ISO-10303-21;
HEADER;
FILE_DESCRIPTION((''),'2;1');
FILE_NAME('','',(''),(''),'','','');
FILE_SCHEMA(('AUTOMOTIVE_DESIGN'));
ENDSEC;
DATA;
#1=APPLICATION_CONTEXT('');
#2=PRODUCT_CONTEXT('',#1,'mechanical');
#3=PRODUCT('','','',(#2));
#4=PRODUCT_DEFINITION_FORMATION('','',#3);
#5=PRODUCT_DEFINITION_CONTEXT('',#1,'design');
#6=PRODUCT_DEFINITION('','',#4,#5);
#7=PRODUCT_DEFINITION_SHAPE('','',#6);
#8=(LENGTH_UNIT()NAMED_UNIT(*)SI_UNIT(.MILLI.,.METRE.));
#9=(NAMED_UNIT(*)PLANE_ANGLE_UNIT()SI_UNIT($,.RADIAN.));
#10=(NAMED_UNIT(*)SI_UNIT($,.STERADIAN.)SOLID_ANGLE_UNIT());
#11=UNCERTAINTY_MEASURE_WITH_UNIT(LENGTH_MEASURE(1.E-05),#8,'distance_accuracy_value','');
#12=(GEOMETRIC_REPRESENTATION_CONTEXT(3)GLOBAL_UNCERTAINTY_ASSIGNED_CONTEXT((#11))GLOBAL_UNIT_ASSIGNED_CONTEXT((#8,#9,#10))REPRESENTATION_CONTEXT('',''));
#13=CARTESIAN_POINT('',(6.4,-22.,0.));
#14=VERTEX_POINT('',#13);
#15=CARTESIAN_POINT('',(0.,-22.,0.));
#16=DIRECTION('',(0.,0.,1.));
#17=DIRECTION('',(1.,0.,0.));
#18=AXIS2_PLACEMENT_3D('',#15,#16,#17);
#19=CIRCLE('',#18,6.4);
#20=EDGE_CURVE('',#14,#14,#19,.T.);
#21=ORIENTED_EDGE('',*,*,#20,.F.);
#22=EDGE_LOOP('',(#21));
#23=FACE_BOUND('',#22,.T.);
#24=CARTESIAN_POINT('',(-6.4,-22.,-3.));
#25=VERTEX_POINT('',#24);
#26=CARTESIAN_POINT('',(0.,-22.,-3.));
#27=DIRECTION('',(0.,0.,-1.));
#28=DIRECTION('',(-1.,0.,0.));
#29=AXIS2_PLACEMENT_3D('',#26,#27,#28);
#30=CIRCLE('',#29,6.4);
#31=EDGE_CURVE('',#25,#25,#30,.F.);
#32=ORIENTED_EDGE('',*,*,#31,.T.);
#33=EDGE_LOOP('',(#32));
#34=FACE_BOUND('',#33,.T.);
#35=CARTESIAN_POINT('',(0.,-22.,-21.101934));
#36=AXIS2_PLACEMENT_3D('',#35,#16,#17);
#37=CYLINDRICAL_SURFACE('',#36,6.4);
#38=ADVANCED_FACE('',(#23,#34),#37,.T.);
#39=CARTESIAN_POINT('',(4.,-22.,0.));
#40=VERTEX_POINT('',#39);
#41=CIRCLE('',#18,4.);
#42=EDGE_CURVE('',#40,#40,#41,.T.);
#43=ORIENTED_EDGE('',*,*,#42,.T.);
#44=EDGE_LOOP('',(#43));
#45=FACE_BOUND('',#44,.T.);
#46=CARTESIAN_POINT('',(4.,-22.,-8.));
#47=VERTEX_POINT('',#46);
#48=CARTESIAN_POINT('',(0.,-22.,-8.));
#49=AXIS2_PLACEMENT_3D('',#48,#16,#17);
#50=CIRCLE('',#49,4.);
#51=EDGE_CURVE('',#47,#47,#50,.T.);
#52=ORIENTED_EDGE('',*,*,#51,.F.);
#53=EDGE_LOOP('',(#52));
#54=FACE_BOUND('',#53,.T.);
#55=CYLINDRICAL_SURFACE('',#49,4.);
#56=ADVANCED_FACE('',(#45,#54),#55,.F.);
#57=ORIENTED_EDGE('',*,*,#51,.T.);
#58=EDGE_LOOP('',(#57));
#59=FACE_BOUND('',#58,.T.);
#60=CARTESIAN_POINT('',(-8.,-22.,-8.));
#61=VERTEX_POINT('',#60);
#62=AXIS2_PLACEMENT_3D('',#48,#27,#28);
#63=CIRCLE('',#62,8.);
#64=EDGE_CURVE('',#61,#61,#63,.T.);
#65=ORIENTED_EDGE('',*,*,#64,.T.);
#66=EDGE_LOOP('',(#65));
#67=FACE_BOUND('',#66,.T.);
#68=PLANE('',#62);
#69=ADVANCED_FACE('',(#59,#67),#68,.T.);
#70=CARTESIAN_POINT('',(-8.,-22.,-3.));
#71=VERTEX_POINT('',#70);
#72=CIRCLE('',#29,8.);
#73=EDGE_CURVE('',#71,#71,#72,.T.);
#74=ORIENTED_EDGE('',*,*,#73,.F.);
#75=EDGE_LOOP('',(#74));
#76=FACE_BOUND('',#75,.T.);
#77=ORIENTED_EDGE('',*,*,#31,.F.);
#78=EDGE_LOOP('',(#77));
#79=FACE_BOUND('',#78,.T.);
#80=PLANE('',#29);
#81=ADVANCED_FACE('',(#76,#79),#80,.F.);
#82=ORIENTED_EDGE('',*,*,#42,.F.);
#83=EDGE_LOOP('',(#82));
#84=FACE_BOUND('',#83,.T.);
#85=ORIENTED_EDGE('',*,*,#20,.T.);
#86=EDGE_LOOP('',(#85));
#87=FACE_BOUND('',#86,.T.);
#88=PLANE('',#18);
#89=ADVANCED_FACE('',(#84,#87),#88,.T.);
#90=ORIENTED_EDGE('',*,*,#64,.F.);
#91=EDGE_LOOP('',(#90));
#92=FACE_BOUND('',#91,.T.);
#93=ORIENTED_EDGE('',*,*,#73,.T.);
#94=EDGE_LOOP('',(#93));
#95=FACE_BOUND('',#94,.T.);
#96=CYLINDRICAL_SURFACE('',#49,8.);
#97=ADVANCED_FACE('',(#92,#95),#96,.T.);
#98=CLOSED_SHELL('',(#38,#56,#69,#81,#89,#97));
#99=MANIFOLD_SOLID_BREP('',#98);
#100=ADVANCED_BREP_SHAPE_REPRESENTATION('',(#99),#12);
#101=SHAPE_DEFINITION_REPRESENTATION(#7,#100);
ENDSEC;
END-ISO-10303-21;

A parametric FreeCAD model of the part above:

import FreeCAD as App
import Part
import Sketcher

V = App.Vector
Q = App.Units.Quantity

doc = App.newDocument("Part")
body = doc.addObject("PartDesign::Body", "Body")

sketch1 = body.newObject("Sketcher::SketchObject", "Sketch")
sketch1.AttachmentSupport = (doc.getObject("XY_Plane"), [""])
sketch1.MapMode = "FlatFace"
sketch1.addGeometry(Part.Circle(V(0, -22, 0), V(0, 0, 1), 6), False)
sketch1.addConstraint(Sketcher.Constraint("PointOnObject", 0, 3, -2))
sketch1.addConstraint(Sketcher.Constraint("Diameter", 0, Q("12.8 mm")))
sketch1.addConstraint(Sketcher.Constraint("DistanceY", 0, 3, -1, 1, Q("22 mm")))
pad1 = body.newObject("PartDesign::Pad", "Pad")
pad1.Profile = sketch1
pad1.Length = 3
pad1.Reversed = True

sketch2 = body.newObject("Sketcher::SketchObject", "Sketch001")
sketch2.AttachmentSupport = (doc.getObject("XY_Plane"), [""])
sketch2.MapMode = "FlatFace"
sketch2.AttachmentOffset = App.Placement(V(0, 0, -3), App.Rotation())
sketch2.addGeometry(Part.Circle(V(0, -22, 0), V(0, 0, 1), 8), False)
sketch2.addConstraint(Sketcher.Constraint("PointOnObject", 0, 3, -2))
sketch2.addConstraint(Sketcher.Constraint("Diameter", 0, Q("16 mm")))
sketch2.addConstraint(Sketcher.Constraint("DistanceY", 0, 3, -1, 1, Q("22 mm")))
pad2 = body.newObject("PartDesign::Pad", "Pad001")
pad2.Profile = sketch2
pad2.Length = 5
pad2.Reversed = True

sketch3 = body.newObject("Sketcher::SketchObject", "Sketch002")
sketch3.AttachmentSupport = (doc.getObject("XY_Plane"), [""])
sketch3.MapMode = "FlatFace"
sketch3.addGeometry(Part.Circle(V(0, -22, 0), V(0, 0, 1), 4), False)
sketch3.addConstraint(Sketcher.Constraint("PointOnObject", 0, 3, -2))
sketch3.addConstraint(Sketcher.Constraint("Diameter", 0, Q("8 mm")))
sketch3.addConstraint(Sketcher.Constraint("DistanceY", 0, 3, -1, 1, Q("22 mm")))
pocket1 = body.newObject("PartDesign::Pocket", "Pocket")
pocket1.Profile = sketch3
pocket1.Type = "ThroughAll"

doc.recompute()
